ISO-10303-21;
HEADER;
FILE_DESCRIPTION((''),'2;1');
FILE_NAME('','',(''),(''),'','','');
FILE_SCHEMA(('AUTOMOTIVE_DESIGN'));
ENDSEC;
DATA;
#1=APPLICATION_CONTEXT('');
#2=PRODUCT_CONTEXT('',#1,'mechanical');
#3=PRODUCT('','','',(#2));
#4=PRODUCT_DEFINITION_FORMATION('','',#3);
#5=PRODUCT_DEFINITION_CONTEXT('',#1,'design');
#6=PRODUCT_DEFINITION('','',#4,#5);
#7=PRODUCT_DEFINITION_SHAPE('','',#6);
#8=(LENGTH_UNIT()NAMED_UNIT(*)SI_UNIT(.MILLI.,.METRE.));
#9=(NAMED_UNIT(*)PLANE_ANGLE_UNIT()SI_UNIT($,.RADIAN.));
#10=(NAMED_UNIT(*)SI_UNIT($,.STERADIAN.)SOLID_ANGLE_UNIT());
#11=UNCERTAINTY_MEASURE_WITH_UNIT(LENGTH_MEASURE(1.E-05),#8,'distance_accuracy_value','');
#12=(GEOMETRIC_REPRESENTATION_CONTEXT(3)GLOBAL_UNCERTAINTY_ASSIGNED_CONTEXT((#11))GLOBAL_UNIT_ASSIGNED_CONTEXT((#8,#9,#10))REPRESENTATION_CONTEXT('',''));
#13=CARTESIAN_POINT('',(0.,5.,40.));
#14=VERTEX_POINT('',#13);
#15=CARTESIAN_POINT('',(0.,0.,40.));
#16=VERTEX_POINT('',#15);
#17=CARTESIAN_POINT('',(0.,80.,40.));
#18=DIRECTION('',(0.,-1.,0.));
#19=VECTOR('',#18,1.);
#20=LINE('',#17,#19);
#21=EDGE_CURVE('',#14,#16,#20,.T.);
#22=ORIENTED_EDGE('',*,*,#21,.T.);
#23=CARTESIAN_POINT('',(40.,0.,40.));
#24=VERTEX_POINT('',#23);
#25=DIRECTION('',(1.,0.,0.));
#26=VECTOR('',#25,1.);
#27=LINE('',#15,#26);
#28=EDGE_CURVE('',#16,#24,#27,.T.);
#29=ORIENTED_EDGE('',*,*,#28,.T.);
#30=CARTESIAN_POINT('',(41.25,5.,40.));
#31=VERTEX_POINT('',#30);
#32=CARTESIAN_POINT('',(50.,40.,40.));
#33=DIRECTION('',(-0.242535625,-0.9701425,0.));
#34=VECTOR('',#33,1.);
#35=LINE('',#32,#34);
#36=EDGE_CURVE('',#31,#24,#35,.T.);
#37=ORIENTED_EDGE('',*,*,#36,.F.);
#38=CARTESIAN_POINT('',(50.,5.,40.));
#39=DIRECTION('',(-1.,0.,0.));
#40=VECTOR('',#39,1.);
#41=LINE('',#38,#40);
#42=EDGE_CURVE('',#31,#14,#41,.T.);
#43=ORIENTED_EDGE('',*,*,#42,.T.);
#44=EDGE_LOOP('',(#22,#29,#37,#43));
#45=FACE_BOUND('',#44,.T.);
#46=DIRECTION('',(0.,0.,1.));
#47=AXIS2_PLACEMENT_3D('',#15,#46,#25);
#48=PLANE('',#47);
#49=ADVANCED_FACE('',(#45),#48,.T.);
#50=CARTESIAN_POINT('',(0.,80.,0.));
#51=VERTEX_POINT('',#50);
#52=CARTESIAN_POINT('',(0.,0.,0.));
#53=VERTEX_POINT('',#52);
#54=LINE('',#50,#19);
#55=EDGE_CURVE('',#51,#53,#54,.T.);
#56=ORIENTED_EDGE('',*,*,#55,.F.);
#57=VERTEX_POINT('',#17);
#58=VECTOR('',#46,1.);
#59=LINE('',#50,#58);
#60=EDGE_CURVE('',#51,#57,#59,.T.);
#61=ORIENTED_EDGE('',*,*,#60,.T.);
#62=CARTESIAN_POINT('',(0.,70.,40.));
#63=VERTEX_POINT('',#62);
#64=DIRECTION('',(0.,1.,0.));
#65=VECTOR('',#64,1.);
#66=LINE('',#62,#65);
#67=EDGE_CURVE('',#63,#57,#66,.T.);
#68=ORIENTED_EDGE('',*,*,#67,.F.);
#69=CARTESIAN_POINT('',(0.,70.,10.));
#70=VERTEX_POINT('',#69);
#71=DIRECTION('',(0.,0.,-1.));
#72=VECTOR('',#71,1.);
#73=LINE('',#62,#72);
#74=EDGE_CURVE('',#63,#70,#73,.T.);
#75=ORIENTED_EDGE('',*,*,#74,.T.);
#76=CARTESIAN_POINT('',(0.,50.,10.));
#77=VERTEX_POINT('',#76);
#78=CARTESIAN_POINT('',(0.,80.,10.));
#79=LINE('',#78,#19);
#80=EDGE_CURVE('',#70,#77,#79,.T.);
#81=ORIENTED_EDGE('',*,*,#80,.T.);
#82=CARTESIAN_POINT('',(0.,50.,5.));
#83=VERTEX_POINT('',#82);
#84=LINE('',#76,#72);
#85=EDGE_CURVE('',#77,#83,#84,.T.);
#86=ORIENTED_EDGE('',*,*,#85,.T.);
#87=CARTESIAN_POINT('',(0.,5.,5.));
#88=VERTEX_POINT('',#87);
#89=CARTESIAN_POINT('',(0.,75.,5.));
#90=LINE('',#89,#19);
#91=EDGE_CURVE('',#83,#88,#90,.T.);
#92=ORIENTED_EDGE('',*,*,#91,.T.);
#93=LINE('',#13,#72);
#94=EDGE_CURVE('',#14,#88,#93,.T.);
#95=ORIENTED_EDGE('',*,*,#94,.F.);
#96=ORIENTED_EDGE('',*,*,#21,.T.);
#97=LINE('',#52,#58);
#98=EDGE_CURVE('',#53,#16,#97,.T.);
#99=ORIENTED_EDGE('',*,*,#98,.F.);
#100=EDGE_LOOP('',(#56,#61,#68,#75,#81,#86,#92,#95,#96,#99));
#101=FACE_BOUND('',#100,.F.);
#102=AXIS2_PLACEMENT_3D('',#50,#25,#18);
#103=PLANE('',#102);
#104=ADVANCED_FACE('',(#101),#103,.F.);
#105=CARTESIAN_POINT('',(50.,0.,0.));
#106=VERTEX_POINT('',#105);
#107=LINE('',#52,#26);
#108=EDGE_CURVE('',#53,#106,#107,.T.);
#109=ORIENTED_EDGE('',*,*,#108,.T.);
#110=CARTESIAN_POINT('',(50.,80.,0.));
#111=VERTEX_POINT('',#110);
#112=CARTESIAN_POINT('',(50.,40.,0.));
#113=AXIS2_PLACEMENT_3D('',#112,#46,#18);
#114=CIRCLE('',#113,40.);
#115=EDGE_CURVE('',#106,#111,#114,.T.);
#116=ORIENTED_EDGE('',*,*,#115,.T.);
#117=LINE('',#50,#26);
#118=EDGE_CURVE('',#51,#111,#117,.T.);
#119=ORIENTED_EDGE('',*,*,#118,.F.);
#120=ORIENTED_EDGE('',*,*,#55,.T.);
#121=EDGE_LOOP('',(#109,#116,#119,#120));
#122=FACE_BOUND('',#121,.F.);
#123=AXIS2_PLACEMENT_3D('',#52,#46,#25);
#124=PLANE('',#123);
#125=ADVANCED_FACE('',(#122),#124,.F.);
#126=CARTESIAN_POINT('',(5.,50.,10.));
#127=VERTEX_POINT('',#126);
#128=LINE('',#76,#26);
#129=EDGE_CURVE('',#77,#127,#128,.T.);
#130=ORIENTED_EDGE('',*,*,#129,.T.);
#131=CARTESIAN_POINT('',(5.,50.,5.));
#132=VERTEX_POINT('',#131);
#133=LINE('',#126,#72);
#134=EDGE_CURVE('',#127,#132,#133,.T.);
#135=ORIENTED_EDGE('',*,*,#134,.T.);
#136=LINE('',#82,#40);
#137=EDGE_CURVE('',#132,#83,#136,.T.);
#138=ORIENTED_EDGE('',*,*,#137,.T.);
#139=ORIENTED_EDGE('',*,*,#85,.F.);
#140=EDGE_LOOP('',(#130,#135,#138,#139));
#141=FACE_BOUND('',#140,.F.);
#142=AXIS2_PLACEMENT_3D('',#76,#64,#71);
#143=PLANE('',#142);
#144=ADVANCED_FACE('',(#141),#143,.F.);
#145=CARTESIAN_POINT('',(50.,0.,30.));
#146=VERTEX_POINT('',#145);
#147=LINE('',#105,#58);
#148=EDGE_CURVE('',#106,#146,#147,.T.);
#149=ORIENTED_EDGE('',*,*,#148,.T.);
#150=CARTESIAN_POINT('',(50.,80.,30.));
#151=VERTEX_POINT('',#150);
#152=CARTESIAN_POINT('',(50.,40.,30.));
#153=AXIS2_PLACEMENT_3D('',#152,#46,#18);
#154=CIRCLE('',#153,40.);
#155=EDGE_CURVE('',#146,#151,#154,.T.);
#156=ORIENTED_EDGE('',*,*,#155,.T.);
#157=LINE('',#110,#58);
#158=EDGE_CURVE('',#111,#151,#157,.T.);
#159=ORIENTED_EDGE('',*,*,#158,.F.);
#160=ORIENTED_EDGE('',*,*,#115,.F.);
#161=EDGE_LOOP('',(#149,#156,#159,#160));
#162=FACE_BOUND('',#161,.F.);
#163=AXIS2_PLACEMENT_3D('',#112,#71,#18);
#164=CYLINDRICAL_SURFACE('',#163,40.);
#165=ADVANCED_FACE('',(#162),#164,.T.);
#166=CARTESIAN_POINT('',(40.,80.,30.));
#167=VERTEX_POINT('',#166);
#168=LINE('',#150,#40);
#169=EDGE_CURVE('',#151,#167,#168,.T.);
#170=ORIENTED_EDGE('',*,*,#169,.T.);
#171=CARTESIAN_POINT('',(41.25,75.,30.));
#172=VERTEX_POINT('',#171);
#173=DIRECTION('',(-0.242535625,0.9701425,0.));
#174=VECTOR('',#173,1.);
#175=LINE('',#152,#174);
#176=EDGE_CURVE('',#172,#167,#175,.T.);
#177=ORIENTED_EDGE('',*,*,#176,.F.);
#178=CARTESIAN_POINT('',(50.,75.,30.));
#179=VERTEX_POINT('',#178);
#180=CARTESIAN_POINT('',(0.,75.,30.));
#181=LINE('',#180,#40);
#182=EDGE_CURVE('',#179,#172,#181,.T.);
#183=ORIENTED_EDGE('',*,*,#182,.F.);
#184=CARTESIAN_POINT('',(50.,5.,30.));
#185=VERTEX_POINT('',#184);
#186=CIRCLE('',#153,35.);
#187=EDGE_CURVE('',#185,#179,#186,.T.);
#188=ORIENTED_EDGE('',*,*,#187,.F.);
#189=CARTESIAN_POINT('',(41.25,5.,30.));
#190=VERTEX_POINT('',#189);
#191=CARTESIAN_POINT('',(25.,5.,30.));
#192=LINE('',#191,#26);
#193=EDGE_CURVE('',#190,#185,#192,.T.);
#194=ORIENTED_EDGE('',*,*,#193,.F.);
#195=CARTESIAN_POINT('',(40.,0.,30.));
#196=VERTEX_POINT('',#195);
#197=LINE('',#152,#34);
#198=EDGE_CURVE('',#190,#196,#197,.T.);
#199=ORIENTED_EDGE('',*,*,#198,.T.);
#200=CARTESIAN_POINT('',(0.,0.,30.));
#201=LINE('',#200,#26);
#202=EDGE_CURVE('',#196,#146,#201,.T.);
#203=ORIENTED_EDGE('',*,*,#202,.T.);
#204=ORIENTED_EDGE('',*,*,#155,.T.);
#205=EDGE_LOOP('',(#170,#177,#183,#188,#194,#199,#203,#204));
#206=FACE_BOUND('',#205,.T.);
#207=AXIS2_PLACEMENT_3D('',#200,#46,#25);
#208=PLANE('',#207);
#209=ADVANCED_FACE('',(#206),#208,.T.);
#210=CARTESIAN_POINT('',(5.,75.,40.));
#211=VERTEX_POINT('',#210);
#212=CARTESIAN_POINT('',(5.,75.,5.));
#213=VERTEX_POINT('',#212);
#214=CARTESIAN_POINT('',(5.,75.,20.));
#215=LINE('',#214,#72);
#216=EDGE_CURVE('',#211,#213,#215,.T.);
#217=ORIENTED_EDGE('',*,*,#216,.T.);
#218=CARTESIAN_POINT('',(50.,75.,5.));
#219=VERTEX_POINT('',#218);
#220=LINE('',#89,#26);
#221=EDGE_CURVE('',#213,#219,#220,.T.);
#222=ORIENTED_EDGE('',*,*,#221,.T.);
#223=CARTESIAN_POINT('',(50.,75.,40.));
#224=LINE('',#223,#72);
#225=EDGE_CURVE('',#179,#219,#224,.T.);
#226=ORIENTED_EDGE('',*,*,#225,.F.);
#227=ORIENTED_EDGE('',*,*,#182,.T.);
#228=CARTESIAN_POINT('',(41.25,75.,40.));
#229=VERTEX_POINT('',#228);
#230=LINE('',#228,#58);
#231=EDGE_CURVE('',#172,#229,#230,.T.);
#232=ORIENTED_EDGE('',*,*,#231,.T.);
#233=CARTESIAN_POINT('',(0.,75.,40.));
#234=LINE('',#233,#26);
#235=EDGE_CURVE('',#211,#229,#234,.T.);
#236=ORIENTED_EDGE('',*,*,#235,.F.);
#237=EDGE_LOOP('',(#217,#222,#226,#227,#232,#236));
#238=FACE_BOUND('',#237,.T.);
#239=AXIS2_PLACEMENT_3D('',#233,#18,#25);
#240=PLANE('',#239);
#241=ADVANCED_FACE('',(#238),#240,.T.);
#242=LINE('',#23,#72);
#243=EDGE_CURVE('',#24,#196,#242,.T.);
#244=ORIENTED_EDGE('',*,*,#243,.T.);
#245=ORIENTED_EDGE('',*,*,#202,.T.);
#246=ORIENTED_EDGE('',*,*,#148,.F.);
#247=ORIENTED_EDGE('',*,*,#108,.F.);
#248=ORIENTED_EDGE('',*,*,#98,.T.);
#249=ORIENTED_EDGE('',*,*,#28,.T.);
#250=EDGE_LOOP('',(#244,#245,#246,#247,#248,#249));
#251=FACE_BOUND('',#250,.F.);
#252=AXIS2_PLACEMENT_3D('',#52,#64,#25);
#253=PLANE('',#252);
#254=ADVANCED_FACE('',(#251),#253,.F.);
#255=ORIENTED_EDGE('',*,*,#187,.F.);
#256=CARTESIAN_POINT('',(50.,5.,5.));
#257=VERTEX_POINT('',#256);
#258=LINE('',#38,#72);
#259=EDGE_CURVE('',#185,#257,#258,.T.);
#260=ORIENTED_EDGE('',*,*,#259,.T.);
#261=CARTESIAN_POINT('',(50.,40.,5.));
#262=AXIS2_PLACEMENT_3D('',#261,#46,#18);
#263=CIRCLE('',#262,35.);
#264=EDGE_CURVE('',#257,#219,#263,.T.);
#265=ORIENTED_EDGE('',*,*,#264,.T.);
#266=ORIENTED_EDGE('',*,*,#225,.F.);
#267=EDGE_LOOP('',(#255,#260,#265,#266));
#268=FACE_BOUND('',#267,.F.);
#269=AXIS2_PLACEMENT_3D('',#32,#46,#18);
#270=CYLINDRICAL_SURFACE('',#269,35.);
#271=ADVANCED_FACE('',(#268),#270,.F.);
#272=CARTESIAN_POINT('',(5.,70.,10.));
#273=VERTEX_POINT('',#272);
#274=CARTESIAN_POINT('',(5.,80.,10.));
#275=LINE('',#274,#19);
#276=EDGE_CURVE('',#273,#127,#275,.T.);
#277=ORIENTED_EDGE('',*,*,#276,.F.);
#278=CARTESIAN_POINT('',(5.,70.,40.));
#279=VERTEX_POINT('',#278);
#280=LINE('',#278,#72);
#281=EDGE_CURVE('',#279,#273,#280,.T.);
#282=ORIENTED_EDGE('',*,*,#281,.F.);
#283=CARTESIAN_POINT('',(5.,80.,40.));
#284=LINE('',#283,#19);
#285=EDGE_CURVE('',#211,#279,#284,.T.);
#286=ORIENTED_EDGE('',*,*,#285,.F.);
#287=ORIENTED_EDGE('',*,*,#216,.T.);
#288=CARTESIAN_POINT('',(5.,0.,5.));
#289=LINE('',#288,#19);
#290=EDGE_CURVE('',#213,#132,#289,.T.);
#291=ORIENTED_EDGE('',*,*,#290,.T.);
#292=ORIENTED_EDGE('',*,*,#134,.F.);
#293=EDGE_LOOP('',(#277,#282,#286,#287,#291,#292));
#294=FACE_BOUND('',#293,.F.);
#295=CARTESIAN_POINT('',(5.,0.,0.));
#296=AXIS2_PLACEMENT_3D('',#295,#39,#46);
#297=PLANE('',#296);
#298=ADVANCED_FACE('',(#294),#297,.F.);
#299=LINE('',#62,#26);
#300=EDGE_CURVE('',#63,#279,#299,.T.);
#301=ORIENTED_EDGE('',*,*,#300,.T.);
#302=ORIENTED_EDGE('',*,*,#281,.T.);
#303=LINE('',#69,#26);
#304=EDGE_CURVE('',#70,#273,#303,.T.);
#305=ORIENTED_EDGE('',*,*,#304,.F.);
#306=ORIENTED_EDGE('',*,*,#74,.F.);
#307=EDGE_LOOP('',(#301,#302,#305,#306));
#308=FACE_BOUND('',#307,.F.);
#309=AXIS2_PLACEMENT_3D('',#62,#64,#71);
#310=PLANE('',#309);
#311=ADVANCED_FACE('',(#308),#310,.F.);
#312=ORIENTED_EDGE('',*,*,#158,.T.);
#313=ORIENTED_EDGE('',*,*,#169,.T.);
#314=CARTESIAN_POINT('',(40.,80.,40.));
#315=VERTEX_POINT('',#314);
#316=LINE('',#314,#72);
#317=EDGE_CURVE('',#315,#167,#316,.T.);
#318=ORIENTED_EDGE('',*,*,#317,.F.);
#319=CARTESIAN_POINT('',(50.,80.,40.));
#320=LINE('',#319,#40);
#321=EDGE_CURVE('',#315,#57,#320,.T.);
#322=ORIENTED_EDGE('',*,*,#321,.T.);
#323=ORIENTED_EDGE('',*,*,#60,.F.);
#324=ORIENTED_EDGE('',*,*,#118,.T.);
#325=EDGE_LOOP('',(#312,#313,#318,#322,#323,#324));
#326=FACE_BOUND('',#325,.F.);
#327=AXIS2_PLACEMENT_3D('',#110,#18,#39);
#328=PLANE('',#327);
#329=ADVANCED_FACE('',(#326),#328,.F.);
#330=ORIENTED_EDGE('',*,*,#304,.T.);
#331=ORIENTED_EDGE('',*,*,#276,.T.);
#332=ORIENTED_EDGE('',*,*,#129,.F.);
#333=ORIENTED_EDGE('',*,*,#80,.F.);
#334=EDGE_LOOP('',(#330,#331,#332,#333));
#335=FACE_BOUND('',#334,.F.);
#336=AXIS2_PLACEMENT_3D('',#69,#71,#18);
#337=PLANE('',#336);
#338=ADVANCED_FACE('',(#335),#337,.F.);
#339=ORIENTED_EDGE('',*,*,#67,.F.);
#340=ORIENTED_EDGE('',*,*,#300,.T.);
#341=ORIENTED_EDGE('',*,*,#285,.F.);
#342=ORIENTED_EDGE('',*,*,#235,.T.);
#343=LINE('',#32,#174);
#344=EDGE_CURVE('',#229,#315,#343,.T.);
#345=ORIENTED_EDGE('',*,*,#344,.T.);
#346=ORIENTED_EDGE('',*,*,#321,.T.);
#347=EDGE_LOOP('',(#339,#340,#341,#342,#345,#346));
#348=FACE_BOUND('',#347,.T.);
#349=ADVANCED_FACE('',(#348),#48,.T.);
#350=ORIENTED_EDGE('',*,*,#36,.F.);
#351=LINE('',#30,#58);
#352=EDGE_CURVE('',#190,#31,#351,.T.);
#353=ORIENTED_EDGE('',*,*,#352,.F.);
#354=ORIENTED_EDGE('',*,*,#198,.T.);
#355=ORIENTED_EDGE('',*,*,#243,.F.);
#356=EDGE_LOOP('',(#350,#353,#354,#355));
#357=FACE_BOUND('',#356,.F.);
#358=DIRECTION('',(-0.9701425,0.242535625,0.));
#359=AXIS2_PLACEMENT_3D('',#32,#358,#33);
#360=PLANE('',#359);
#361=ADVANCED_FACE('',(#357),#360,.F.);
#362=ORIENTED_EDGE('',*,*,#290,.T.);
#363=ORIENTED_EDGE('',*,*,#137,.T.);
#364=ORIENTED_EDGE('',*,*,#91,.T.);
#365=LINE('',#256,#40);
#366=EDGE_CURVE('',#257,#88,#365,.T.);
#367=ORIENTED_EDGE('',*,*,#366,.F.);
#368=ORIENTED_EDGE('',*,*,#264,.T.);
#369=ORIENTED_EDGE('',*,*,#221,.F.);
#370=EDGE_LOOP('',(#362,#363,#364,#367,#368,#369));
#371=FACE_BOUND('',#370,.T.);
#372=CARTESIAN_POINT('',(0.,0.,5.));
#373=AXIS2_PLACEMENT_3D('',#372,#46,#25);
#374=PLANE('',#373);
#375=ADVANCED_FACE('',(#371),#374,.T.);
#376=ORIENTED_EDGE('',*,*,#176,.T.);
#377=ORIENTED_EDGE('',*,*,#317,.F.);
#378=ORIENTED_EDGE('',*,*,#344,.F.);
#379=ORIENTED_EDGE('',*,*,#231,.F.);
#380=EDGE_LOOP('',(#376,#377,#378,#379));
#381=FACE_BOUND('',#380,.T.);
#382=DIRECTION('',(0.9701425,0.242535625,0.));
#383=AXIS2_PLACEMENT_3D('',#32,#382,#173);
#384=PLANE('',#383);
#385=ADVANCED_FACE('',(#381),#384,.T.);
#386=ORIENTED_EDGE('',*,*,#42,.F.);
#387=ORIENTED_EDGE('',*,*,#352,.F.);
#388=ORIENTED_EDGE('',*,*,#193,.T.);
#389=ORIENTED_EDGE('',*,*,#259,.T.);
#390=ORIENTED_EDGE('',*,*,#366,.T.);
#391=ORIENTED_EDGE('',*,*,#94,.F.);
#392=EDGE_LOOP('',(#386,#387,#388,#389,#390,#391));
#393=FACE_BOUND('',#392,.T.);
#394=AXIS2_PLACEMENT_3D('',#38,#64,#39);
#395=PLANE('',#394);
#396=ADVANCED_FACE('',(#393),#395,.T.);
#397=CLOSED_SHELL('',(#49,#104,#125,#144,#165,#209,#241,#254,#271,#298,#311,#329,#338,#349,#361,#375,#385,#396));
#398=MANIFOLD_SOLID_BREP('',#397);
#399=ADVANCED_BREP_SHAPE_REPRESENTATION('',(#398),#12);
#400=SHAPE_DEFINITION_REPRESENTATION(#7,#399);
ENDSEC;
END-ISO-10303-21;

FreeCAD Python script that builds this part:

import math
import FreeCAD as App
import Part
import Sketcher

V = App.Vector
Q = App.Units.Quantity

doc = App.newDocument("Part")
params = doc.addObject("Spreadsheet::Sheet", "Params")
for row, (alias, value) in enumerate([
    ("sketch1_radius", "40 mm"),
    ("sketch1_width", "50 mm"),
    ("pad1_length", "40 mm"),
    ("sketch2_radius", "35 mm"),
    ("sketch2_width", "50 mm"),
    ("pocket1_length", "35 mm"),
    ("sketch3_width", "10 mm"),
    ("sketch3_width2", "30 mm"),
    ("pad2_length", "5 mm"),
    ("sketch4_width", "10 mm"),
    ("sketch4_radius", "40 mm"),
    ("pocket2_length", "10 mm"),
], start=1):
    params.set(f"A{row}", alias)
    params.set(f"B{row}", "=" + value)
    params.setAlias(f"B{row}", alias)

body = doc.addObject("PartDesign::Body", "Body")

sketch1 = body.newObject("Sketcher::SketchObject", "Sketch")
sketch1.AttachmentSupport = (doc.getObject("XY_Plane"), [""])
sketch1.MapMode = "FlatFace"
sketch1.addGeometry(Part.LineSegment(V(0, 80, 0), V(0, 0, 0)), False)
sketch1.addGeometry(Part.LineSegment(V(0, 0, 0), V(50, 0, 0)), False)
sketch1.addGeometry(Part.ArcOfCircle(Part.Circle(V(50, 40, 0), V(0, 0, 1), 40), math.radians(-90), math.radians(90)), False)
sketch1.addGeometry(Part.LineSegment(V(50, 80, 0), V(0, 80, 0)), False)
sketch1.addConstraint(Sketcher.Constraint("Coincident", 0, 2, 1, 1))
sketch1.addConstraint(Sketcher.Constraint("Tangent", 1, 2, 2, 1))
sketch1.addConstraint(Sketcher.Constraint("Tangent", 2, 2, 3, 1))
sketch1.addConstraint(Sketcher.Constraint("Coincident", 3, 2, 0, 1))
sketch1.addConstraint(Sketcher.Constraint("Vertical", 0))
sketch1.addConstraint(Sketcher.Constraint("Horizontal", 1))
sketch1.addConstraint(Sketcher.Constraint("Horizontal", 3))
sketch1.addConstraint(Sketcher.Constraint("Coincident", 0, 2, -1, 1))
sketch1.addConstraint(Sketcher.Constraint("Radius", 2, Q("40 mm")))
sketch1.addConstraint(Sketcher.Constraint("DistanceX", 1, 1, 1, 2, Q("50 mm")))
sketch1.setExpression("Constraints[8]", "Params.sketch1_radius")
sketch1.setExpression("Constraints[9]", "Params.sketch1_width")
pad1 = body.newObject("PartDesign::Pad", "Pad")
pad1.Profile = sketch1
pad1.setExpression("Length", "Params.pad1_length")

sketch2 = body.newObject("Sketcher::SketchObject", "Sketch001")
sketch2.AttachmentSupport = (doc.getObject("XY_Plane"), [""])
sketch2.MapMode = "FlatFace"
sketch2.AttachmentOffset = App.Placement(V(0, 0, 40), App.Rotation())
sketch2.addGeometry(Part.LineSegment(V(50, 75, 0), V(0, 75, 0)), False)
sketch2.addGeometry(Part.LineSegment(V(0, 75, 0), V(0, 5, 0)), False)
sketch2.addGeometry(Part.LineSegment(V(0, 5, 0), V(50, 5, 0)), False)
sketch2.addGeometry(Part.ArcOfCircle(Part.Circle(V(50, 40, 0), V(0, 0, 1), 35), math.radians(-90), math.radians(90)), False)
sketch2.addConstraint(Sketcher.Constraint("Coincident", 0, 2, 1, 1))
sketch2.addConstraint(Sketcher.Constraint("Coincident", 1, 2, 2, 1))
sketch2.addConstraint(Sketcher.Constraint("Tangent", 2, 2, 3, 1))
sketch2.addConstraint(Sketcher.Constraint("Tangent", 3, 2, 0, 1))
sketch2.addConstraint(Sketcher.Constraint("Horizontal", 0))
sketch2.addConstraint(Sketcher.Constraint("Vertical", 1))
sketch2.addConstraint(Sketcher.Constraint("Horizontal", 2))
sketch2.addConstraint(Sketcher.Constraint("PointOnObject", 0, 2, -2))
sketch2.addConstraint(Sketcher.Constraint("DistanceY", -1, 1, 1, 2, Q("5 mm")))
sketch2.addConstraint(Sketcher.Constraint("Radius", 3, Q("35 mm")))
sketch2.addConstraint(Sketcher.Constraint("DistanceX", 0, 2, 0, 1, Q("50 mm")))
sketch2.setExpression("Constraints[9]", "Params.sketch2_radius")
sketch2.setExpression("Constraints[10]", "Params.sketch2_width")
pocket1 = body.newObject("PartDesign::Pocket", "Pocket")
pocket1.Profile = sketch2
pocket1.setExpression("Length", "Params.pocket1_length")

sketch3 = body.newObject("Sketcher::SketchObject", "Sketch002")
sketch3.AttachmentSupport = (doc.getObject("YZ_Plane"), [""])
sketch3.MapMode = "FlatFace"
sketch3.addGeometry(Part.LineSegment(V(80, 0, 0), V(50, 0, 0)), False)
sketch3.addGeometry(Part.LineSegment(V(50, 0, 0), V(50, 10, 0)), False)
sketch3.addGeometry(Part.LineSegment(V(50, 10, 0), V(70, 10, 0)), False)
sketch3.addGeometry(Part.LineSegment(V(70, 10, 0), V(70, 40, 0)), False)
sketch3.addGeometry(Part.LineSegment(V(70, 40, 0), V(80, 40, 0)), False)
sketch3.addGeometry(Part.LineSegment(V(80, 40, 0), V(80, 0, 0)), False)
sketch3.addConstraint(Sketcher.Constraint("Coincident", 0, 2, 1, 1))
sketch3.addConstraint(Sketcher.Constraint("Coincident", 1, 2, 2, 1))
sketch3.addConstraint(Sketcher.Constraint("Coincident", 2, 2, 3, 1))
sketch3.addConstraint(Sketcher.Constraint("Coincident", 3, 2, 4, 1))
sketch3.addConstraint(Sketcher.Constraint("Coincident", 4, 2, 5, 1))
sketch3.addConstraint(Sketcher.Constraint("Coincident", 5, 2, 0, 1))
sketch3.addConstraint(Sketcher.Constraint("Horizontal", 0))
sketch3.addConstraint(Sketcher.Constraint("Vertical", 1))
sketch3.addConstraint(Sketcher.Constraint("Horizontal", 2))
sketch3.addConstraint(Sketcher.Constraint("Vertical", 3))
sketch3.addConstraint(Sketcher.Constraint("Horizontal", 4))
sketch3.addConstraint(Sketcher.Constraint("Vertical", 5))
sketch3.addConstraint(Sketcher.Constraint("PointOnObject", 0, 2, -1))
sketch3.addConstraint(Sketcher.Constraint("Equal", 4, 1))
sketch3.addConstraint(Sketcher.Constraint("Equal", 0, 3))
sketch3.addConstraint(Sketcher.Constraint("DistanceX", 4, 1, 4, 2, Q("10 mm")))
sketch3.addConstraint(Sketcher.Constraint("DistanceX", -1, 1, 0, 2, Q("50 mm")))
sketch3.addConstraint(Sketcher.Constraint("DistanceX", 0, 2, 0, 1, Q("30 mm")))
sketch3.setExpression("Constraints[15]", "Params.sketch3_width")
sketch3.setExpression("Constraints[17]", "Params.sketch3_width2")
pad2 = body.newObject("PartDesign::Pad", "Pad001")
pad2.Profile = sketch3
pad2.setExpression("Length", "Params.pad2_length")

sketch4 = body.newObject("Sketcher::SketchObject", "Sketch003")
sketch4.AttachmentSupport = (doc.getObject("XY_Plane"), [""])
sketch4.MapMode = "FlatFace"
sketch4.AttachmentOffset = App.Placement(V(0, 0, 40), App.Rotation())
sketch4.addGeometry(Part.ArcOfCircle(Part.Circle(V(50, 40, 0), V(0, 0, 1), 40), math.radians(-90), math.radians(90)), False)
sketch4.addGeometry(Part.LineSegment(V(50, 80, 0), V(40, 80, 0)), False)
sketch4.addGeometry(Part.LineSegment(V(40, 80, 0), V(50, 40, 0)), False)
sketch4.addGeometry(Part.LineSegment(V(50, 40, 0), V(40, 0, 0)), False)
sketch4.addGeometry(Part.LineSegment(V(40, 0, 0), V(50, 0, 0)), False)
sketch4.addConstraint(Sketcher.Constraint("Tangent", 0, 2, 1, 1))
sketch4.addConstraint(Sketcher.Constraint("Coincident", 1, 2, 2, 1))
sketch4.addConstraint(Sketcher.Constraint("Coincident", 2, 2, 3, 1))
sketch4.addConstraint(Sketcher.Constraint("Coincident", 3, 2, 4, 1))
sketch4.addConstraint(Sketcher.Constraint("Tangent", 4, 2, 0, 1))
sketch4.addConstraint(Sketcher.Constraint("Horizontal", 1))
sketch4.addConstraint(Sketcher.Constraint("Horizontal", 4))
sketch4.addConstraint(Sketcher.Constraint("Coincident", 2, 2, 0, 3))
sketch4.addConstraint(Sketcher.Constraint("PointOnObject", 3, 2, -1))
sketch4.addConstraint(Sketcher.Constraint("Vertical", 1, 2, 3, 2))
sketch4.addConstraint(Sketcher.Constraint("DistanceX", 1, 2, 1, 1, Q("10 mm")))
sketch4.addConstraint(Sketcher.Constraint("Radius", 0, Q("40 mm")))
sketch4.addConstraint(Sketcher.Constraint("DistanceX", -1, 1, 0, 3, Q("50 mm")))
sketch4.setExpression("Constraints[10]", "Params.sketch4_width")
sketch4.setExpression("Constraints[11]", "Params.sketch4_radius")
pocket2 = body.newObject("PartDesign::Pocket", "Pocket001")
pocket2.Profile = sketch4
pocket2.setExpression("Length", "Params.pocket2_length")

doc.recompute()
